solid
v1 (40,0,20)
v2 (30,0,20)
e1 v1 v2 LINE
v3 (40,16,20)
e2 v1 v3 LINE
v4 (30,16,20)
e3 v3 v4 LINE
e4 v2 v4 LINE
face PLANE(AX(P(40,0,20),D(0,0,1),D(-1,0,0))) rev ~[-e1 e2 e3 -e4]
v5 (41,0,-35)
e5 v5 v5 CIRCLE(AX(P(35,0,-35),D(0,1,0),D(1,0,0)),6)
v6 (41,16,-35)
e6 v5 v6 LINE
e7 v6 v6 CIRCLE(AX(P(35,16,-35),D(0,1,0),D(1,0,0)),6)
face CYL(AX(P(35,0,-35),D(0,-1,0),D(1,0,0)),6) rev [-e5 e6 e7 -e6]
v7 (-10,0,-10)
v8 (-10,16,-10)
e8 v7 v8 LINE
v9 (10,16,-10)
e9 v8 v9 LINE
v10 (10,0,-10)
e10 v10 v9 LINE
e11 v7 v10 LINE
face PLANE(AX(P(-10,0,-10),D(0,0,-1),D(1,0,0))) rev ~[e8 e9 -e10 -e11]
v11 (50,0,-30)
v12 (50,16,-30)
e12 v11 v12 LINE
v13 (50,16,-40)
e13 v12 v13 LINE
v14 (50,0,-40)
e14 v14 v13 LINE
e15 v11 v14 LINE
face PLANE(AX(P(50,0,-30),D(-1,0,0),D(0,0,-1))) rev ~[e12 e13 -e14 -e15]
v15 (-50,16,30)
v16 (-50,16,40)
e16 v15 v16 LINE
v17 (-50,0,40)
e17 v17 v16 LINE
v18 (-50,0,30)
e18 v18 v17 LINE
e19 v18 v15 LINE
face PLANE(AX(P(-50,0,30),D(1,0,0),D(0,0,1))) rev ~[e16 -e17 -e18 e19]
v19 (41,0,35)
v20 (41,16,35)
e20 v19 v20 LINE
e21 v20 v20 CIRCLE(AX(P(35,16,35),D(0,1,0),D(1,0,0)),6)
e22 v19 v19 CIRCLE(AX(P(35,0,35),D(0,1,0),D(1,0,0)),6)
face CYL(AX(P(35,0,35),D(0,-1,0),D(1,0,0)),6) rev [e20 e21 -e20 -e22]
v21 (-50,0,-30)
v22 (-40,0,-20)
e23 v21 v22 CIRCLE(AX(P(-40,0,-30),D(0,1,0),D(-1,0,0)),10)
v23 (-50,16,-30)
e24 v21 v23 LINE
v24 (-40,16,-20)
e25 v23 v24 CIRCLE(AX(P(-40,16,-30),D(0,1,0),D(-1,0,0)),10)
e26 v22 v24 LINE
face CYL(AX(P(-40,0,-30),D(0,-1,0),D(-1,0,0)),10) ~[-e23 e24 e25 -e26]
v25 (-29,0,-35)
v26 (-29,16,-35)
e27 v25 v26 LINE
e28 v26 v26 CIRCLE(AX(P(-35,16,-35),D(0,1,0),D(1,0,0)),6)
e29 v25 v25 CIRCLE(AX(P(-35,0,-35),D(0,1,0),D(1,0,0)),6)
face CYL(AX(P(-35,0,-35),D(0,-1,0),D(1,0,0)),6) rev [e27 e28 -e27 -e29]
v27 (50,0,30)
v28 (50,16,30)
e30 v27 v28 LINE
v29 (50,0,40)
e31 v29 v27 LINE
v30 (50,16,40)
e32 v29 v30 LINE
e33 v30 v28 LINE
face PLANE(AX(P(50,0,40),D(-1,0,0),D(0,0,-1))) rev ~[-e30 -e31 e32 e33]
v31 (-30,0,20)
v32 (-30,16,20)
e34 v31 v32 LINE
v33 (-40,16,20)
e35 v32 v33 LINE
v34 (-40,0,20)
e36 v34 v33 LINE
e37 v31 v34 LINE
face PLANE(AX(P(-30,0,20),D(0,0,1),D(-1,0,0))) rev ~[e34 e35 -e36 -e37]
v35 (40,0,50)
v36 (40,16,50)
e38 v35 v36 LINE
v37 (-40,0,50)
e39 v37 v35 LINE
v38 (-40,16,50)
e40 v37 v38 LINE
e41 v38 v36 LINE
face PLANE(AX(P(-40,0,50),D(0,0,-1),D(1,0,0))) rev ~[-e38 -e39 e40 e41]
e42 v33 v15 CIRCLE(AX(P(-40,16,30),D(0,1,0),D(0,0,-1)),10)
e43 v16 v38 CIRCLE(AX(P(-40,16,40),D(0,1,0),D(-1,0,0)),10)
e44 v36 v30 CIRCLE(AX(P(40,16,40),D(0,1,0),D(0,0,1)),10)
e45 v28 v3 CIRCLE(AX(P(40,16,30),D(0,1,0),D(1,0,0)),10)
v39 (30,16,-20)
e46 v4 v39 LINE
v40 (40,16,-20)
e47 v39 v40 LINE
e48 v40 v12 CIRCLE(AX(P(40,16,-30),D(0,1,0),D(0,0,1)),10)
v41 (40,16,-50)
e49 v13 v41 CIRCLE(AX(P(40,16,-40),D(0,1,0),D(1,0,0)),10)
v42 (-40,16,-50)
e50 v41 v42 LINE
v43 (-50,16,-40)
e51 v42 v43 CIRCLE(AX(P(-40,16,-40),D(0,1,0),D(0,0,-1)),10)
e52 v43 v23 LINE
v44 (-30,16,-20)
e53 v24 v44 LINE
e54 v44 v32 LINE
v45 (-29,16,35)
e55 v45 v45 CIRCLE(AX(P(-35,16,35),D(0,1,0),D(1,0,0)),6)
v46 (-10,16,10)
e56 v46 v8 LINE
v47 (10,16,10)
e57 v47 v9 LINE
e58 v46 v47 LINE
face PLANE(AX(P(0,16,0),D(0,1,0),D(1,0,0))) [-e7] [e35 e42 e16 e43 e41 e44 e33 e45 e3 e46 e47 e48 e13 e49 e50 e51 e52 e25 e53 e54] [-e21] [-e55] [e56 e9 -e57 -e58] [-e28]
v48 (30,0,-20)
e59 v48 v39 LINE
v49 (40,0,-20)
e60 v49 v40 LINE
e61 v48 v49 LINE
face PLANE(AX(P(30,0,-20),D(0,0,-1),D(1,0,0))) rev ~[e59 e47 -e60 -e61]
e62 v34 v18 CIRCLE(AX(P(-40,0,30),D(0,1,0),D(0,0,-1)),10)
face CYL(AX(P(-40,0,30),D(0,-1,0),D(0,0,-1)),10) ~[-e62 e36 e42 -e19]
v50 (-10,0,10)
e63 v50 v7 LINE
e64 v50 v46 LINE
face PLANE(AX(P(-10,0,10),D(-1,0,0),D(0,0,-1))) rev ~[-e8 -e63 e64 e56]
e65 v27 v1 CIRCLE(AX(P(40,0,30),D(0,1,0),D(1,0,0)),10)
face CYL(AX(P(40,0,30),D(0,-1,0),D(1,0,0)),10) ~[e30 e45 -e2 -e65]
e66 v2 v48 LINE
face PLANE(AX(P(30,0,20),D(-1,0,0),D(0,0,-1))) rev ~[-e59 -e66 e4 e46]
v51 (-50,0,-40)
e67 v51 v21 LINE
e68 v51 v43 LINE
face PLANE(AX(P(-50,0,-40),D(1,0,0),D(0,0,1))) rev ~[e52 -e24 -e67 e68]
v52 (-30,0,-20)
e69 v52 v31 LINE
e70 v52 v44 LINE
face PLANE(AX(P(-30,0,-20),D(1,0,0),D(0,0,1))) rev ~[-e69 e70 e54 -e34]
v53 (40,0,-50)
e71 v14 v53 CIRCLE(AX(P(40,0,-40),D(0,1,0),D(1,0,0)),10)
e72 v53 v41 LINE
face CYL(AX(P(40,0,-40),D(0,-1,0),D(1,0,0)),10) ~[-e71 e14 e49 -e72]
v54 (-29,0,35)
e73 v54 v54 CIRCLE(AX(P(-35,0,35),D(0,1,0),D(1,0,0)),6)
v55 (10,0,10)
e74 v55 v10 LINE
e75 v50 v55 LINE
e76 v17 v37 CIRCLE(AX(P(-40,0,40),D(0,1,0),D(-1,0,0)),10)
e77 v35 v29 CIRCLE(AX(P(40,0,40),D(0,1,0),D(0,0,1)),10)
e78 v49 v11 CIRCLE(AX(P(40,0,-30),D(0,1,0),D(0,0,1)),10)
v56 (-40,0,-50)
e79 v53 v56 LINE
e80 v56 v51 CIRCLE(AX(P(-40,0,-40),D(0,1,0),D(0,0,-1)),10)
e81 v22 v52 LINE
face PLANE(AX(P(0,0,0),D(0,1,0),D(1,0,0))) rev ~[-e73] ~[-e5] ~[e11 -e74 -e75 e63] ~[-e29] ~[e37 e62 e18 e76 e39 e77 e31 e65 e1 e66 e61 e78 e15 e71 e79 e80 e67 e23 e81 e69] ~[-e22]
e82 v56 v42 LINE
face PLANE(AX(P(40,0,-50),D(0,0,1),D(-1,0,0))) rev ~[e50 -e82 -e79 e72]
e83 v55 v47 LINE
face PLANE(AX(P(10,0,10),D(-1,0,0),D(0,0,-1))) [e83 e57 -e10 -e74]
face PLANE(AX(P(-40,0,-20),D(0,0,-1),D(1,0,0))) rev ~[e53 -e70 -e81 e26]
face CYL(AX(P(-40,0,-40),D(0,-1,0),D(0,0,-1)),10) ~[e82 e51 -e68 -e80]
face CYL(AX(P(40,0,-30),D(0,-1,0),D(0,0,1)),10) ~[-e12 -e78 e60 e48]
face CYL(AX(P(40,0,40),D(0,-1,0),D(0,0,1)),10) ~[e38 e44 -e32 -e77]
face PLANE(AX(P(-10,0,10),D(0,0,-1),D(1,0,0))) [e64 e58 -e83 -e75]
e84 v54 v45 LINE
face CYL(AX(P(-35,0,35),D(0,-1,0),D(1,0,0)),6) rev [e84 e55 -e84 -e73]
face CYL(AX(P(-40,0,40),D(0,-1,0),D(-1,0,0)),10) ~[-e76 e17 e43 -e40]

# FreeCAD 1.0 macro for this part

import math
import FreeCAD as App
import Part
import Sketcher

V = App.Vector
Q = App.Units.Quantity


def add_polygon(sketch, points):
    """Adds a closed chain of lines whose ends are joined by coincident constraints."""
    first, n = sketch.GeometryCount, len(points)
    for a, b in zip(points, points[1:] + points[:1]):
        sketch.addGeometry(Part.LineSegment(App.Vector(*a, 0), App.Vector(*b, 0)), False)
    for i in range(n):
        sketch.addConstraint(Sketcher.Constraint("Coincident", first + i, 2, first + (i + 1) % n, 1))

doc = App.newDocument("Part")
body = doc.addObject("PartDesign::Body", "Body")

# Sketch on XZ plane
sketch1 = body.newObject("Sketcher::SketchObject", "Sketch")
sketch1.AttachmentSupport = (doc.getObject("XZ_Plane"), [""])
sketch1.MapMode = "FlatFace"
sketch1.addGeometry(Part.LineSegment(V(-30, -20, 0), V(-30, 20, 0)), False)  # 0
sketch1.addGeometry(Part.LineSegment(V(-30, 20, 0), V(-40, 20, 0)), False)  # 1
sketch1.addGeometry(Part.ArcOfCircle(Part.Circle(V(-40, 30, 0), V(0, 0, 1), 10), math.radians(180), math.radians(270)), False)  # 2
sketch1.addGeometry(Part.LineSegment(V(-50, 30, 0), V(-50, 40, 0)), False)  # 3
sketch1.addGeometry(Part.ArcOfCircle(Part.Circle(V(-40, 40, 0), V(0, 0, 1), 10), math.radians(90), math.radians(180)), False)  # 4
sketch1.addGeometry(Part.LineSegment(V(-40, 50, 0), V(40, 50, 0)), False)  # 5
sketch1.addGeometry(Part.ArcOfCircle(Part.Circle(V(40, 40, 0), V(0, 0, 1), 10), math.radians(0), math.radians(90)), False)  # 6
sketch1.addGeometry(Part.LineSegment(V(50, 40, 0), V(50, 30, 0)), False)  # 7
sketch1.addGeometry(Part.ArcOfCircle(Part.Circle(V(40, 30, 0), V(0, 0, 1), 10), math.radians(-90), math.radians(0)), False)  # 8
sketch1.addGeometry(Part.LineSegment(V(40, 20, 0), V(30, 20, 0)), False)  # 9
sketch1.addGeometry(Part.LineSegment(V(30, 20, 0), V(30, -20, 0)), False)  # 10
sketch1.addGeometry(Part.LineSegment(V(30, -20, 0), V(40, -20, 0)), False)  # 11
sketch1.addGeometry(Part.ArcOfCircle(Part.Circle(V(40, -30, 0), V(0, 0, 1), 10), math.radians(0), math.radians(90)), False)  # 12
sketch1.addGeometry(Part.LineSegment(V(50, -30, 0), V(50, -40, 0)), False)  # 13
sketch1.addGeometry(Part.ArcOfCircle(Part.Circle(V(40, -40, 0), V(0, 0, 1), 10), math.radians(-90), math.radians(0)), False)  # 14
sketch1.addGeometry(Part.LineSegment(V(40, -50, 0), V(-40, -50, 0)), False)  # 15
sketch1.addGeometry(Part.ArcOfCircle(Part.Circle(V(-40, -40, 0), V(0, 0, 1), 10), math.radians(180), math.radians(270)), False)  # 16
sketch1.addGeometry(Part.LineSegment(V(-50, -40, 0), V(-50, -30, 0)), False)  # 17
sketch1.addGeometry(Part.ArcOfCircle(Part.Circle(V(-40, -30, 0), V(0, 0, 1), 10), math.radians(90), math.radians(180)), False)  # 18
sketch1.addGeometry(Part.LineSegment(V(-40, -20, 0), V(-30, -20, 0)), False)  # 19
sketch1.addGeometry(Part.Circle(V(-35, 35, 0), V(0, 0, 1), 6), False)  # 20
sketch1.addGeometry(Part.Circle(V(35, 35, 0), V(0, 0, 1), 6), False)  # 21
sketch1.addGeometry(Part.Circle(V(-35, -35, 0), V(0, 0, 1), 6), False)  # 22
add_polygon(sketch1, [(10, 10), (-10, 10), (-10, -10), (10, -10)])  # lines 23-26
sketch1.addGeometry(Part.Circle(V(35, -35, 0), V(0, 0, 1), 6), False)  # 27
sketch1.addConstraint(Sketcher.Constraint("Coincident", 0, 2, 1, 1))
sketch1.addConstraint(Sketcher.Constraint("Tangent", 1, 2, 2, 2))
sketch1.addConstraint(Sketcher.Constraint("Tangent", 2, 1, 3, 1))
sketch1.addConstraint(Sketcher.Constraint("Tangent", 3, 2, 4, 2))
sketch1.addConstraint(Sketcher.Constraint("Tangent", 4, 1, 5, 1))
sketch1.addConstraint(Sketcher.Constraint("Tangent", 5, 2, 6, 2))
sketch1.addConstraint(Sketcher.Constraint("Tangent", 6, 1, 7, 1))
sketch1.addConstraint(Sketcher.Constraint("Tangent", 7, 2, 8, 2))
sketch1.addConstraint(Sketcher.Constraint("Tangent", 8, 1, 9, 1))
sketch1.addConstraint(Sketcher.Constraint("Coincident", 9, 2, 10, 1))
sketch1.addConstraint(Sketcher.Constraint("Coincident", 10, 2, 11, 1))
sketch1.addConstraint(Sketcher.Constraint("Tangent", 11, 2, 12, 2))
sketch1.addConstraint(Sketcher.Constraint("Tangent", 12, 1, 13, 1))
sketch1.addConstraint(Sketcher.Constraint("Tangent", 13, 2, 14, 2))
sketch1.addConstraint(Sketcher.Constraint("Tangent", 14, 1, 15, 1))
sketch1.addConstraint(Sketcher.Constraint("Tangent", 15, 2, 16, 2))
sketch1.addConstraint(Sketcher.Constraint("Tangent", 16, 1, 17, 1))
sketch1.addConstraint(Sketcher.Constraint("Tangent", 17, 2, 18, 2))
sketch1.addConstraint(Sketcher.Constraint("Tangent", 18, 1, 19, 1))
sketch1.addConstraint(Sketcher.Constraint("Coincident", 19, 2, 0, 1))
sketch1.addConstraint(Sketcher.Constraint("Vertical", 0))
sketch1.addConstraint(Sketcher.Constraint("Horizontal", 1))
sketch1.addConstraint(Sketcher.Constraint("Vertical", 3))
sketch1.addConstraint(Sketcher.Constraint("Horizontal", 5))
sketch1.addConstraint(Sketcher.Constraint("Vertical", 7))
sketch1.addConstraint(Sketcher.Constraint("Horizontal", 9))
sketch1.addConstraint(Sketcher.Constraint("Vertical", 10))
sketch1.addConstraint(Sketcher.Constraint("Horizontal", 11))
sketch1.addConstraint(Sketcher.Constraint("Vertical", 13))
sketch1.addConstraint(Sketcher.Constraint("Horizontal", 15))
sketch1.addConstraint(Sketcher.Constraint("Vertical", 17))
sketch1.addConstraint(Sketcher.Constraint("Horizontal", 19))
sketch1.addConstraint(Sketcher.Constraint("Horizontal", 23))
sketch1.addConstraint(Sketcher.Constraint("Vertical", 24))
sketch1.addConstraint(Sketcher.Constraint("Horizontal", 25))
sketch1.addConstraint(Sketcher.Constraint("Vertical", 26))
sketch1.addConstraint(Sketcher.Constraint("Equal", 2, 4))
sketch1.addConstraint(Sketcher.Constraint("Equal", 4, 6))
sketch1.addConstraint(Sketcher.Constraint("Equal", 6, 8))
sketch1.addConstraint(Sketcher.Constraint("Equal", 8, 12))
sketch1.addConstraint(Sketcher.Constraint("Equal", 12, 14))
sketch1.addConstraint(Sketcher.Constraint("Equal", 14, 16))
sketch1.addConstraint(Sketcher.Constraint("Equal", 16, 18))
sketch1.addConstraint(Sketcher.Constraint("Equal", 20, 21))
sketch1.addConstraint(Sketcher.Constraint("Equal", 21, 22))
sketch1.addConstraint(Sketcher.Constraint("Equal", 22, 27))
sketch1.addConstraint(Sketcher.Constraint("Symmetric", 2, 3, 12, 3, -1, 1))
sketch1.addConstraint(Sketcher.Constraint("Symmetric", 6, 3, 16, 3, -1, 1))
sketch1.addConstraint(Sketcher.Constraint("Symmetric", 21, 3, 22, 3, -1, 1))
sketch1.addConstraint(Sketcher.Constraint("Symmetric", 20, 3, 27, 3, -1, 1))
sketch1.addConstraint(Sketcher.Constraint("Symmetric", 9, 2, 19, 2, -1, 1))
sketch1.addConstraint(Sketcher.Constraint("Symmetric", 23, 2, 25, 2, -1, 1))
sketch1.addConstraint(Sketcher.Constraint("Symmetric", 2, 3, 8, 3, -2))
sketch1.addConstraint(Sketcher.Constraint("Symmetric", 20, 3, 21, 3, -2))
sketch1.addConstraint(Sketcher.Constraint("Equal", 19, 3))
sketch1.addConstraint(Sketcher.Constraint("Equal", 25, 24))
sketch1.addConstraint(Sketcher.Constraint("Diameter", 20, Q("12 mm")))
sketch1.addConstraint(Sketcher.Constraint("Radius", 2, Q("10 mm")))
sketch1.addConstraint(Sketcher.Constraint("DistanceX", 1, 2, 1, 1, Q("10 mm")))
sketch1.addConstraint(Sketcher.Constraint("DistanceX", 5, 1, 5, 2, Q("80 mm")))
sketch1.addConstraint(Sketcher.Constraint("DistanceX", 23, 2, 23, 1, Q("20 mm")))
sketch1.addConstraint(Sketcher.Constraint("DistanceY", 0, 1, 0, 2, Q("40 mm")))
sketch1.addConstraint(Sketcher.Constraint("DistanceX", 20, 3, -1, 1, Q("35 mm")))
sketch1.addConstraint(Sketcher.Constraint("DistanceY", -1, 1, 20, 3, Q("35 mm")))
pad1 = body.newObject("PartDesign::Pad", "Pad")
pad1.Profile = sketch1
pad1.Length = 16
pad1.Reversed = True

doc.recompute()
